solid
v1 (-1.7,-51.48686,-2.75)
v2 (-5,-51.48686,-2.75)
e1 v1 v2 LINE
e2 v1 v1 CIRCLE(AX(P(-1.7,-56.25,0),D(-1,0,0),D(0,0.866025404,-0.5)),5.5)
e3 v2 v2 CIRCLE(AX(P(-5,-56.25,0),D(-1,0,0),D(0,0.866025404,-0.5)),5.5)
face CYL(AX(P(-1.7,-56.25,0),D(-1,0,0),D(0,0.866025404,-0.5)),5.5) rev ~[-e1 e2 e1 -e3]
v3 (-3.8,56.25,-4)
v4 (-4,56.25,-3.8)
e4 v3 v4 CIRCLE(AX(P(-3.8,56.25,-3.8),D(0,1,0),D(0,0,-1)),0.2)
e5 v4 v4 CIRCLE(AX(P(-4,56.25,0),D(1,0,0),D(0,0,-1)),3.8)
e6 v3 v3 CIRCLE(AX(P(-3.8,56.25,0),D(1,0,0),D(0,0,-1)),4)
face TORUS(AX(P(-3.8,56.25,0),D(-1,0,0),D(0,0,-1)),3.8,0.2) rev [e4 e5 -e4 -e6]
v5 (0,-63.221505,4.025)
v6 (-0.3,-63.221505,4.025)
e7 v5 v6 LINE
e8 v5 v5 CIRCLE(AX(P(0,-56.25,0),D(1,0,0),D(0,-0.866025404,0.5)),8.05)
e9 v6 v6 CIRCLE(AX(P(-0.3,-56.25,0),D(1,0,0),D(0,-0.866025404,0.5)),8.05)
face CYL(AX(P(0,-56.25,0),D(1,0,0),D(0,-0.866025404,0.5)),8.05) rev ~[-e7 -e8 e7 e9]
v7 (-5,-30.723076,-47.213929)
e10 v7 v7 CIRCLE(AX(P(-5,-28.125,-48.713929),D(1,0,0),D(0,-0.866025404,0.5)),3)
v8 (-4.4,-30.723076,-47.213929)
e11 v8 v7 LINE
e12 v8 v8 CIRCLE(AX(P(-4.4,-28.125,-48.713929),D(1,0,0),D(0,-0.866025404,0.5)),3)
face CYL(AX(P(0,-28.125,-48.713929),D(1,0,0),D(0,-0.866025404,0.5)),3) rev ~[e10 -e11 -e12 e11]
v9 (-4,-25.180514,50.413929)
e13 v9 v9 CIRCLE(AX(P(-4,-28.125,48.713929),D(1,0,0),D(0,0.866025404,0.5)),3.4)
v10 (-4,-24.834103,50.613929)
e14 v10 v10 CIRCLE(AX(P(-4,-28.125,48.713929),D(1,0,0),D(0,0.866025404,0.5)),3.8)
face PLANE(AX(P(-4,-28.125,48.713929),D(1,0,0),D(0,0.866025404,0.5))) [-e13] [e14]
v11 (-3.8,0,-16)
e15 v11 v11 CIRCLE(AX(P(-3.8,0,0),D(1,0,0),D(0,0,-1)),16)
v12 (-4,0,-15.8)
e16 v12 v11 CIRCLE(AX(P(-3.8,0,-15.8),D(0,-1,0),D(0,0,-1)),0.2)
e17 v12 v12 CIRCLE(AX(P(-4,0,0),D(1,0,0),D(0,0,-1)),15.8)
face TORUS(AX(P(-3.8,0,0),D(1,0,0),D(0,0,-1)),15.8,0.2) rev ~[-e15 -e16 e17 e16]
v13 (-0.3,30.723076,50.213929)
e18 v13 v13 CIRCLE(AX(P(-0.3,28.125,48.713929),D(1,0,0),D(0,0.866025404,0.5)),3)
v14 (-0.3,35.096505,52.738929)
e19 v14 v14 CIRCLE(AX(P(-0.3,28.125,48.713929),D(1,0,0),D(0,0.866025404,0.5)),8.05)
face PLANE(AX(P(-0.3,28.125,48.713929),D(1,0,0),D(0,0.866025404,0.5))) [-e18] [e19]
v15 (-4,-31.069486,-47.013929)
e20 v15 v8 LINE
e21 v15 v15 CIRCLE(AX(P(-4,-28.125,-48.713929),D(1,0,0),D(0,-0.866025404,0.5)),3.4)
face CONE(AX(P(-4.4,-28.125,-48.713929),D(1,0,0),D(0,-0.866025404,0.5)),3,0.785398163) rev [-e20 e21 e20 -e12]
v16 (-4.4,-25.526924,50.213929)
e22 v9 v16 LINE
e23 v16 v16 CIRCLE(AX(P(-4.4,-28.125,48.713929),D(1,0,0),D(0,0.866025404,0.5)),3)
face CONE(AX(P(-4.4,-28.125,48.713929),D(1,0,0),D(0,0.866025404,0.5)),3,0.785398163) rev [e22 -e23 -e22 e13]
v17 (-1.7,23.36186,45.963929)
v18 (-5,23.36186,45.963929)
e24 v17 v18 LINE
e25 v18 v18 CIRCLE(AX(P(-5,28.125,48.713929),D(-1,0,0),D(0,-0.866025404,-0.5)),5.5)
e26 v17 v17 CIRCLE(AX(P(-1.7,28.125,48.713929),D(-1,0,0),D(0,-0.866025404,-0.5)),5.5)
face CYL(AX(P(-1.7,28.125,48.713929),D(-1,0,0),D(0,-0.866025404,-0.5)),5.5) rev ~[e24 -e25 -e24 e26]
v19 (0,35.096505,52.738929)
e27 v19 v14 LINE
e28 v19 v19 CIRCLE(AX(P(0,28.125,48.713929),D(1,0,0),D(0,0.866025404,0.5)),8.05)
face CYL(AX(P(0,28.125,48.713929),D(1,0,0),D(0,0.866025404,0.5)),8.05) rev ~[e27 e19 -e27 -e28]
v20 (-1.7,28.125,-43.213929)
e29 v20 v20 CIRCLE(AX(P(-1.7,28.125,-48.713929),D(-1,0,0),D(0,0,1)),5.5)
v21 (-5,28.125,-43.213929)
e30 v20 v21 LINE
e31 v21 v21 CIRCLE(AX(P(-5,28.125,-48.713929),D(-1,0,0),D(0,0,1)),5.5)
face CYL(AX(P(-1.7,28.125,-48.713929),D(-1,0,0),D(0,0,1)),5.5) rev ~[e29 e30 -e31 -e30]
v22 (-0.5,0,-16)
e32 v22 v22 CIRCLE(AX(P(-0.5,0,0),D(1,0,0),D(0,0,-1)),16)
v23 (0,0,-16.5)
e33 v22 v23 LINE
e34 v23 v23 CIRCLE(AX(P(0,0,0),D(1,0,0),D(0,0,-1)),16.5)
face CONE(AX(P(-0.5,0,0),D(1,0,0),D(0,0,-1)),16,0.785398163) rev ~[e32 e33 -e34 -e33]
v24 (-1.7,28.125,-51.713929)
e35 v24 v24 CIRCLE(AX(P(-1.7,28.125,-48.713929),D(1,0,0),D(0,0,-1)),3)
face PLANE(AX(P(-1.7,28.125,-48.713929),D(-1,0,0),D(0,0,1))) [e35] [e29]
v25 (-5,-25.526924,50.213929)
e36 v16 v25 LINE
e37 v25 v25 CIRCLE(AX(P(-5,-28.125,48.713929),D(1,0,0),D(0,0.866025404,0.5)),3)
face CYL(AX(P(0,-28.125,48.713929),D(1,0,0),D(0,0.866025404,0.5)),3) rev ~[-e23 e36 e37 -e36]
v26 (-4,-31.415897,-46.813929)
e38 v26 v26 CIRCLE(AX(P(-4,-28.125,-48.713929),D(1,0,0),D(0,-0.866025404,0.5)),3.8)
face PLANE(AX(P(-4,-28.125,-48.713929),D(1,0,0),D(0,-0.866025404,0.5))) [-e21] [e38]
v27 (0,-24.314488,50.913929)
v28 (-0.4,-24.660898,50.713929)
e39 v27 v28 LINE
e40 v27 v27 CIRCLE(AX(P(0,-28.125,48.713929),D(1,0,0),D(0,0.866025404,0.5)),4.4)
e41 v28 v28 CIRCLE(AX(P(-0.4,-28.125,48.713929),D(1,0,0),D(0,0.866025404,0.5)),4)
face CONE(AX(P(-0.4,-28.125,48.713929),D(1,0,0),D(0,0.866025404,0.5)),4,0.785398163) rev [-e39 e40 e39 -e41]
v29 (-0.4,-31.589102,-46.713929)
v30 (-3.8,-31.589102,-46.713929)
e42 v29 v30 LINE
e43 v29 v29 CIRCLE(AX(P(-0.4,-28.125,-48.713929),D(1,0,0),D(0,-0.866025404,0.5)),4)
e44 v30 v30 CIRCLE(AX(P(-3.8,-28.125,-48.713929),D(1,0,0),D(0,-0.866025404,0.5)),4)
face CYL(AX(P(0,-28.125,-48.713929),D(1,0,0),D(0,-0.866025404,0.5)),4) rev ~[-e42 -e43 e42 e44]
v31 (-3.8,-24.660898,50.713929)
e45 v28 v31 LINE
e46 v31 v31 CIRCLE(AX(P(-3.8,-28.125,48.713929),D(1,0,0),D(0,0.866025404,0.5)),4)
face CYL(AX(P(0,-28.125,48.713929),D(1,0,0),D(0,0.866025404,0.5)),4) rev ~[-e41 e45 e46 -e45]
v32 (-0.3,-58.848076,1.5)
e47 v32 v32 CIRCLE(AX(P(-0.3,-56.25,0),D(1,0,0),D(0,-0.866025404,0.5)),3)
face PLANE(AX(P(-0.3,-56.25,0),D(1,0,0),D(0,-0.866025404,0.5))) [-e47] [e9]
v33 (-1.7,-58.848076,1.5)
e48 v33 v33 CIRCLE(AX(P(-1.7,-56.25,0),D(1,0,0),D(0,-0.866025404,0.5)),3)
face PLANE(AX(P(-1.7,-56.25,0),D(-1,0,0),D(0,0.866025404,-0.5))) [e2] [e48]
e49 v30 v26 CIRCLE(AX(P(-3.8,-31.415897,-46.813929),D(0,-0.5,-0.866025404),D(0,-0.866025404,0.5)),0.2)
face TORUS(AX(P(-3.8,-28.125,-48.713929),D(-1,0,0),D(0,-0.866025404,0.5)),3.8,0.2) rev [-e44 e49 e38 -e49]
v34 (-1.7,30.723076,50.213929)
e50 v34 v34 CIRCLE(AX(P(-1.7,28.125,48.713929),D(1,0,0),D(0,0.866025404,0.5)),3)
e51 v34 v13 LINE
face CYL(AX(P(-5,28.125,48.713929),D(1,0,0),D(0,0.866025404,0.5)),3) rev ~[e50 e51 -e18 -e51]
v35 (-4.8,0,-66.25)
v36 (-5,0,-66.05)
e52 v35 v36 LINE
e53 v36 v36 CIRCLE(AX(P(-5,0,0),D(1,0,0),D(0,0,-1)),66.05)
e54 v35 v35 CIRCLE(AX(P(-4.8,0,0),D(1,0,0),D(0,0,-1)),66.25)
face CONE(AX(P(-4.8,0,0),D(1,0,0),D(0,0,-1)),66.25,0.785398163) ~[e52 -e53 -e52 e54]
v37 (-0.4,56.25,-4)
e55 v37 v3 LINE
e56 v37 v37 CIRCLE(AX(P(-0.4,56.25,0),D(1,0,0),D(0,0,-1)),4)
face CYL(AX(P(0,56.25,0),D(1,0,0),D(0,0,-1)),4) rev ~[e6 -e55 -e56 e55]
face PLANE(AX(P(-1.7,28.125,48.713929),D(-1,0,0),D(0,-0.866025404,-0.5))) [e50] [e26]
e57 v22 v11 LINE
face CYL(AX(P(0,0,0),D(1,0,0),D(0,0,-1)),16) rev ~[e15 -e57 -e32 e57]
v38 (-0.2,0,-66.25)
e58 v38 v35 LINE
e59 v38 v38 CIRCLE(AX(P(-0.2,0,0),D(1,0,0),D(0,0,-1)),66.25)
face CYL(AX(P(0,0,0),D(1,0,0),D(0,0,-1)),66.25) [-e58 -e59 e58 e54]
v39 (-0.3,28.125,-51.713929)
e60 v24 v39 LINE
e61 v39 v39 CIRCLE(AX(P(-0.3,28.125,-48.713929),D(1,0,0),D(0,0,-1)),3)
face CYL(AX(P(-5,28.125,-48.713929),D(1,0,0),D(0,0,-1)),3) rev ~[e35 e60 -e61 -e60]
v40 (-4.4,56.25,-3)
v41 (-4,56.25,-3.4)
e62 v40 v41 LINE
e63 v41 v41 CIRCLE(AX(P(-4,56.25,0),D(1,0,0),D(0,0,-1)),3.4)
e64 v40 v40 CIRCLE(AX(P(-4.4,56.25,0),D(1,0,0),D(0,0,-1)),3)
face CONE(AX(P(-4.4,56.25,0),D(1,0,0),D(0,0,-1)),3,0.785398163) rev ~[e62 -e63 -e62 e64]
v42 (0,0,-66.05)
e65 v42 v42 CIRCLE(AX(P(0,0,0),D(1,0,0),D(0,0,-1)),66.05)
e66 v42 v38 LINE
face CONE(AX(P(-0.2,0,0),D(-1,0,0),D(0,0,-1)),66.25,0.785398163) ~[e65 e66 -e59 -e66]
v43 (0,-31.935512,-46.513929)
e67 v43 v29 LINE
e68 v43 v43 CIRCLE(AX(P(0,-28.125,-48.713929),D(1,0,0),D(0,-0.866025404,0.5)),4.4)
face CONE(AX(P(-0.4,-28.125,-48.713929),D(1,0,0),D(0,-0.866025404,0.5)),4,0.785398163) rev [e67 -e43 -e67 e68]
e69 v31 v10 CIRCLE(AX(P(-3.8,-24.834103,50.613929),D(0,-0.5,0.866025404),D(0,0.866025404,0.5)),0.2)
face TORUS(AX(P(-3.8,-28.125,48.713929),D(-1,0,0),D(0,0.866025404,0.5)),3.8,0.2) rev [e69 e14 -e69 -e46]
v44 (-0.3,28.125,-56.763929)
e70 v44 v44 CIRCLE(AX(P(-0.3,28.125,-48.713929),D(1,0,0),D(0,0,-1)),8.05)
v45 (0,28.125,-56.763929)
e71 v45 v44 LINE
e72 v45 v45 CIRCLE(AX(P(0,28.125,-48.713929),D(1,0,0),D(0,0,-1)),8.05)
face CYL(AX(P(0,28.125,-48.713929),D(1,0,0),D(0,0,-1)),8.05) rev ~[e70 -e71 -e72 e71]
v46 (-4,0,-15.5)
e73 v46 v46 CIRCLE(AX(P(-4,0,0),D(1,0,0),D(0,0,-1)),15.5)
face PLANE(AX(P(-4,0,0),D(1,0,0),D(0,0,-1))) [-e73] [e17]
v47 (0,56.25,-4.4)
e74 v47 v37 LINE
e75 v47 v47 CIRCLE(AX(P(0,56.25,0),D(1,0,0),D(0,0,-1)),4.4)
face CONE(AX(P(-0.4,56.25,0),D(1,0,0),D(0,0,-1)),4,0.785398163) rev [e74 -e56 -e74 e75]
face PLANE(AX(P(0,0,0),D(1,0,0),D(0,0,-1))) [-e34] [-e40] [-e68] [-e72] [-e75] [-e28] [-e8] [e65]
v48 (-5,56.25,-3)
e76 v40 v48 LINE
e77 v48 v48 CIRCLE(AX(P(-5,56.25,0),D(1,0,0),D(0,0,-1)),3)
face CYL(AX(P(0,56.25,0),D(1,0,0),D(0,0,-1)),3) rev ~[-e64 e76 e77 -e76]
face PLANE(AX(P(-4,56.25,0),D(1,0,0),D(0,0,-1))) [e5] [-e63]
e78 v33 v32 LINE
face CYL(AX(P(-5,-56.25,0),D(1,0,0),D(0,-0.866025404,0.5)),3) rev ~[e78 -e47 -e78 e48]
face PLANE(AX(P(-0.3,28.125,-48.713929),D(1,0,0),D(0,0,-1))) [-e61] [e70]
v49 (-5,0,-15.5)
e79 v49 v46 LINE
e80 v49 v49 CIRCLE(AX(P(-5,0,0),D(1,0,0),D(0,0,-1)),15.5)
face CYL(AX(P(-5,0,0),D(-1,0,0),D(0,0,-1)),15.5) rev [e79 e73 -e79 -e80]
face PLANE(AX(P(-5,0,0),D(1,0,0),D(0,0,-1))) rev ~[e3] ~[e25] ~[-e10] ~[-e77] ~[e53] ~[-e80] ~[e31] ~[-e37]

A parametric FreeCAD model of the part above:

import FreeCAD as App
import Part
import Sketcher
Q = App.Units.Quantity


def edges_at(feature, points):
    """Names of the edges that pass closest to the given points."""
    edges = feature.Shape.Edges
    near = lambda p: min(range(len(edges)), key=lambda i: edges[i].distToShape(Part.Vertex(*p))[0])
    return sorted({f"Edge{near(p) + 1}" for p in points})

doc = App.newDocument("Part")
body = doc.addObject("PartDesign::Body", "Body")

# Sketch on YZ plane
sketch1 = body.newObject("Sketcher::SketchObject", "Sketch")
sketch1.AttachmentSupport = (doc.getObject("YZ_Plane"), [""])
sketch1.MapMode = "FlatFace"
sketch1.addGeometry([
    Part.Circle(App.Vector(0, 0, 0), App.Vector(0, 0, 1), 66.25),
    Part.Circle(App.Vector(0, 0, 0), App.Vector(0, 0, 1), 16),
], False)
sketch1.addConstraint([
    Sketcher.Constraint("Coincident", 0, 3, -1, 1),
    Sketcher.Constraint("Coincident", 1, 3, -1, 1),
    Sketcher.Constraint("Diameter", 1, Q("32 mm")),
    Sketcher.Constraint("Diameter", 0, Q("132.5 mm")),
])
pad1 = body.newObject("PartDesign::Pad", "Pad")
pad1.Profile = sketch1
pad1.Length = 5
pad1.Reversed = True

# Sketch on YZ plane
sketch2 = body.newObject("Sketcher::SketchObject", "Sketch001")
sketch2.AttachmentSupport = (doc.getObject("YZ_Plane"), [""])
sketch2.MapMode = "FlatFace"
sketch2.addGeometry(Part.Circle(App.Vector(56.25, 0, 0), App.Vector(0, 0, 1), 3), False)
sketch2.addConstraint([
    Sketcher.Constraint("PointOnObject", 0, 3, -1),
    Sketcher.Constraint("Diameter", 0, Q("6 mm")),
    Sketcher.Constraint("DistanceX", -1, 1, 0, 3, Q("56.25 mm")),
])
pocket1 = body.newObject("PartDesign::Pocket", "Pocket")
pocket1.Profile = sketch2
pocket1.Length = 5

# Sketch on YZ plane
sketch3 = body.newObject("Sketcher::SketchObject", "Sketch002")
sketch3.AttachmentSupport = (doc.getObject("YZ_Plane"), [""])
sketch3.MapMode = "FlatFace"
sketch3.addGeometry([
    Part.Circle(App.Vector(56.25, 0, 0), App.Vector(0, 0, 1), 4),
    Part.Circle(App.Vector(56.25, 0, 0), App.Vector(0, 0, 1), 3),
], False)
sketch3.addConstraint([
    Sketcher.Constraint("Coincident", 1, 3, 0, 3),
    Sketcher.Constraint("PointOnObject", 0, 3, -1),
    Sketcher.Constraint("Diameter", 0, Q("8 mm")),
    Sketcher.Constraint("Diameter", 1, Q("6 mm")),
    Sketcher.Constraint("DistanceX", -1, 1, 0, 3, Q("56.25 mm")),
])
pocket2 = body.newObject("PartDesign::Pocket", "Pocket001")
pocket2.Profile = sketch3
pocket2.Length = 4
doc.recompute()

chamfer = body.newObject("PartDesign::Chamfer", "Chamfer")
chamfer.Base = (pocket2, edges_at(pocket2, [(0, 56.25, 4), (-4, 56.25, 3)]))
chamfer.Size = 0.4
doc.recompute()

fillet = body.newObject("PartDesign::Fillet", "Fillet")
fillet.Base = (chamfer, edges_at(chamfer, [(-4, 56.25, 4)]))
fillet.Radius = 0.2

# Sketch on YZ plane
sketch4 = body.newObject("Sketcher::SketchObject", "Sketch003")
sketch4.AttachmentSupport = (doc.getObject("YZ_Plane"), [""])
sketch4.MapMode = "FlatFace"
sketch4.addGeometry(Part.Circle(App.Vector(28.125, -48.713929, 0), App.Vector(0, 0, 1), 8.05), False)
sketch4.addConstraint([
    Sketcher.Constraint("Diameter", 0, Q("16.1 mm")),
    Sketcher.Constraint("DistanceX", -1, 1, 0, 3, Q("28.125 mm")),
    Sketcher.Constraint("DistanceY", 0, 3, -1, 1, Q("48.713929 mm")),
])
pocket3 = body.newObject("PartDesign::Pocket", "Pocket002")
pocket3.Profile = sketch4
pocket3.Length = 0.3

# Sketch on YZ plane
sketch5 = body.newObject("Sketcher::SketchObject", "Sketch004")
sketch5.AttachmentSupport = (doc.getObject("YZ_Plane"), [""])
sketch5.MapMode = "FlatFace"
sketch5.AttachmentOffset = App.Placement(App.Vector(0, 0, -5), App.Rotation())
sketch5.addGeometry(Part.Circle(App.Vector(28.125, -48.713929, 0), App.Vector(0, 0, 1), 3), False)
sketch5.addConstraint([
    Sketcher.Constraint("Diameter", 0, Q("6 mm")),
    Sketcher.Constraint("DistanceX", -1, 1, 0, 3, Q("28.125 mm")),
    Sketcher.Constraint("DistanceY", 0, 3, -1, 1, Q("48.713929 mm")),
])
doc.recompute()
hole = body.newObject("PartDesign::Hole", "Hole")
hole.Profile = sketch5
hole.ThreadType = "None"
hole.Diameter = 6
hole.DepthType = "ThroughAll"
hole.HoleCutType = "Counterbore"
hole.HoleCutDiameter = 11
hole.HoleCutDepth = 3.3
hole.Reversed = True
doc.recompute()

polarpattern = body.newObject("PartDesign::PolarPattern", "PolarPattern")
polarpattern.Originals = [pocket1, pocket2, pocket3, hole]
polarpattern.Axis = (doc.getObject("X_Axis"), [""])
polarpattern.Angle = 360
polarpattern.Occurrences = 3
body.Tip = polarpattern
doc.recompute()

chamfer2 = body.newObject("PartDesign::Chamfer", "Chamfer001")
chamfer2.Base = (polarpattern, edges_at(polarpattern, [
    (0, -31.589, 46.714),
    (-4, -30.723, 47.214),
    (0, -24.661, -50.714),
    (-4, -25.527, -50.214),
]))
chamfer2.Size = 0.4
doc.recompute()

fillet2 = body.newObject("PartDesign::Fillet", "Fillet001")
fillet2.Base = (chamfer2, edges_at(chamfer2, [(-4, -31.589, 46.714), (-4, -24.661, -50.714)]))
fillet2.Radius = 0.2

# Sketch on YZ plane
sketch6 = body.newObject("Sketcher::SketchObject", "Sketch005")
sketch6.AttachmentSupport = (doc.getObject("YZ_Plane"), [""])
sketch6.MapMode = "FlatFace"
sketch6.AttachmentOffset = App.Placement(App.Vector(0, 0, -5), App.Rotation())
sketch6.addGeometry([
    Part.Circle(App.Vector(0, 0, 0), App.Vector(0, 0, 1), 16),
    Part.Circle(App.Vector(0, 0, 0), App.Vector(0, 0, 1), 15.5),
], False)
sketch6.addConstraint([
    Sketcher.Constraint("Coincident", 0, 3, -1, 1),
    Sketcher.Constraint("Coincident", 1, 3, -1, 1),
    Sketcher.Constraint("Diameter", 0, Q("32 mm")),
    Sketcher.Constraint("Diameter", 1, Q("31 mm")),
])
pad2 = body.newObject("PartDesign::Pad", "Pad001")
pad2.Profile = sketch6
pad2.Length = 1
doc.recompute()

fillet3 = body.newObject("PartDesign::Fillet", "Fillet002")
fillet3.Base = (pad2, edges_at(pad2, [(-4, 0, 16)]))
fillet3.Radius = 0.2
doc.recompute()

chamfer3 = body.newObject("PartDesign::Chamfer", "Chamfer002")
chamfer3.Base = (fillet3, edges_at(fillet3, [(0, 0, 16)]))
chamfer3.Size = 0.5
doc.recompute()

chamfer4 = body.newObject("PartDesign::Chamfer", "Chamfer003")
chamfer4.Base = (chamfer3, edges_at(chamfer3, [(0, 0, 66.25), (-5, 0, 66.25)]))
chamfer4.Size = 0.2

doc.recompute()
